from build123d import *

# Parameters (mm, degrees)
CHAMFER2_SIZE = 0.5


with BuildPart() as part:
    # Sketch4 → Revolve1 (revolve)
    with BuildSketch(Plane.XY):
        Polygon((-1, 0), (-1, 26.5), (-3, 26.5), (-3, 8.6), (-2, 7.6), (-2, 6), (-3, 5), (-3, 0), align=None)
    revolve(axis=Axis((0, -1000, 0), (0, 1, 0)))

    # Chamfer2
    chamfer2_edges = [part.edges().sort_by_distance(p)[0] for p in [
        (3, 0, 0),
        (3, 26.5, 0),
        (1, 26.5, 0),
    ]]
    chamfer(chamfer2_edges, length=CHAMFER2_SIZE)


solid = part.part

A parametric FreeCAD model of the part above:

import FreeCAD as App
import Part
import Sketcher

V = App.Vector


def edges_at(feature, points):
    """Names of the edges that pass closest to the given points."""
    edges = feature.Shape.Edges
    near = lambda p: min(range(len(edges)), key=lambda i: edges[i].distToShape(Part.Vertex(*p))[0])
    return sorted({f"Edge{near(p) + 1}" for p in points})


def add_polygon(sketch, points):
    """Adds a closed chain of lines whose ends are joined by coincident constraints."""
    first, n = sketch.GeometryCount, len(points)
    for a, b in zip(points, points[1:] + points[:1]):
        sketch.addGeometry(Part.LineSegment(App.Vector(*a, 0), App.Vector(*b, 0)), False)
    for i in range(n):
        sketch.addConstraint(Sketcher.Constraint("Coincident", first + i, 2, first + (i + 1) % n, 1))

doc = App.newDocument("Part")
body = doc.addObject("PartDesign::Body", "Body")

# Sketch on XY plane
sketch1 = body.newObject("Sketcher::SketchObject", "Sketch")
sketch1.AttachmentSupport = (doc.getObject("XY_Plane"), [""])
sketch1.MapMode = "FlatFace"
add_polygon(sketch1, [(-1, 0), (-1, 26.5), (-3, 26.5), (-3, 8.6), (-2, 7.6), (-2, 6), (-3, 5), (-3, 0)])  # lines 0-7
sketch1.addConstraint(Sketcher.Constraint("Vertical", 0))
sketch1.addConstraint(Sketcher.Constraint("Horizontal", 1))
sketch1.addConstraint(Sketcher.Constraint("Vertical", 2))
sketch1.addConstraint(Sketcher.Constraint("Vertical", 4))
sketch1.addConstraint(Sketcher.Constraint("Vertical", 6))
sketch1.addConstraint(Sketcher.Constraint("Horizontal", 7))
sketch1.addConstraint(Sketcher.Constraint("PointOnObject", 6, 2, -1))
sketch1.addConstraint(Sketcher.Constraint("Perpendicular", 3, 5))
sketch1.addConstraint(Sketcher.Constraint("Vertical", 2, 2, 5, 2))
sketch1.addConstraint(Sketcher.Constraint("Equal", 3, 5))
sketch1.addConstraint(Sketcher.Constraint("DistanceX", 1, 2, 1, 1, 2.0))
sketch1.addConstraint(Sketcher.Constraint("DistanceY", 6, 2, 6, 1, 5.0))
sketch1.addConstraint(Sketcher.Constraint("DistanceY", 0, 1, 0, 2, 26.5))
sketch1.addConstraint(Sketcher.Constraint("DistanceY", 2, 2, 2, 1, 17.9))
sketch1.addConstraint(Sketcher.Constraint("DistanceY", 4, 2, 4, 1, 1.6))
sketch1.addConstraint(Sketcher.Constraint("DistanceX", 0, 2, -1, 1, 1.0))
revolution = body.newObject("PartDesign::Revolution", "Revolution")
revolution.Profile = sketch1
revolution.ReferenceAxis = (sketch1, ["V_Axis"])
revolution.Angle = 360
doc.recompute()

chamfer = body.newObject("PartDesign::Chamfer", "Chamfer")
chamfer.Base = (revolution, edges_at(revolution, [(3, 0, 0), (3, 26.5, 0), (1, 26.5, 0)]))
chamfer.Size = 0.5

doc.recompute()
